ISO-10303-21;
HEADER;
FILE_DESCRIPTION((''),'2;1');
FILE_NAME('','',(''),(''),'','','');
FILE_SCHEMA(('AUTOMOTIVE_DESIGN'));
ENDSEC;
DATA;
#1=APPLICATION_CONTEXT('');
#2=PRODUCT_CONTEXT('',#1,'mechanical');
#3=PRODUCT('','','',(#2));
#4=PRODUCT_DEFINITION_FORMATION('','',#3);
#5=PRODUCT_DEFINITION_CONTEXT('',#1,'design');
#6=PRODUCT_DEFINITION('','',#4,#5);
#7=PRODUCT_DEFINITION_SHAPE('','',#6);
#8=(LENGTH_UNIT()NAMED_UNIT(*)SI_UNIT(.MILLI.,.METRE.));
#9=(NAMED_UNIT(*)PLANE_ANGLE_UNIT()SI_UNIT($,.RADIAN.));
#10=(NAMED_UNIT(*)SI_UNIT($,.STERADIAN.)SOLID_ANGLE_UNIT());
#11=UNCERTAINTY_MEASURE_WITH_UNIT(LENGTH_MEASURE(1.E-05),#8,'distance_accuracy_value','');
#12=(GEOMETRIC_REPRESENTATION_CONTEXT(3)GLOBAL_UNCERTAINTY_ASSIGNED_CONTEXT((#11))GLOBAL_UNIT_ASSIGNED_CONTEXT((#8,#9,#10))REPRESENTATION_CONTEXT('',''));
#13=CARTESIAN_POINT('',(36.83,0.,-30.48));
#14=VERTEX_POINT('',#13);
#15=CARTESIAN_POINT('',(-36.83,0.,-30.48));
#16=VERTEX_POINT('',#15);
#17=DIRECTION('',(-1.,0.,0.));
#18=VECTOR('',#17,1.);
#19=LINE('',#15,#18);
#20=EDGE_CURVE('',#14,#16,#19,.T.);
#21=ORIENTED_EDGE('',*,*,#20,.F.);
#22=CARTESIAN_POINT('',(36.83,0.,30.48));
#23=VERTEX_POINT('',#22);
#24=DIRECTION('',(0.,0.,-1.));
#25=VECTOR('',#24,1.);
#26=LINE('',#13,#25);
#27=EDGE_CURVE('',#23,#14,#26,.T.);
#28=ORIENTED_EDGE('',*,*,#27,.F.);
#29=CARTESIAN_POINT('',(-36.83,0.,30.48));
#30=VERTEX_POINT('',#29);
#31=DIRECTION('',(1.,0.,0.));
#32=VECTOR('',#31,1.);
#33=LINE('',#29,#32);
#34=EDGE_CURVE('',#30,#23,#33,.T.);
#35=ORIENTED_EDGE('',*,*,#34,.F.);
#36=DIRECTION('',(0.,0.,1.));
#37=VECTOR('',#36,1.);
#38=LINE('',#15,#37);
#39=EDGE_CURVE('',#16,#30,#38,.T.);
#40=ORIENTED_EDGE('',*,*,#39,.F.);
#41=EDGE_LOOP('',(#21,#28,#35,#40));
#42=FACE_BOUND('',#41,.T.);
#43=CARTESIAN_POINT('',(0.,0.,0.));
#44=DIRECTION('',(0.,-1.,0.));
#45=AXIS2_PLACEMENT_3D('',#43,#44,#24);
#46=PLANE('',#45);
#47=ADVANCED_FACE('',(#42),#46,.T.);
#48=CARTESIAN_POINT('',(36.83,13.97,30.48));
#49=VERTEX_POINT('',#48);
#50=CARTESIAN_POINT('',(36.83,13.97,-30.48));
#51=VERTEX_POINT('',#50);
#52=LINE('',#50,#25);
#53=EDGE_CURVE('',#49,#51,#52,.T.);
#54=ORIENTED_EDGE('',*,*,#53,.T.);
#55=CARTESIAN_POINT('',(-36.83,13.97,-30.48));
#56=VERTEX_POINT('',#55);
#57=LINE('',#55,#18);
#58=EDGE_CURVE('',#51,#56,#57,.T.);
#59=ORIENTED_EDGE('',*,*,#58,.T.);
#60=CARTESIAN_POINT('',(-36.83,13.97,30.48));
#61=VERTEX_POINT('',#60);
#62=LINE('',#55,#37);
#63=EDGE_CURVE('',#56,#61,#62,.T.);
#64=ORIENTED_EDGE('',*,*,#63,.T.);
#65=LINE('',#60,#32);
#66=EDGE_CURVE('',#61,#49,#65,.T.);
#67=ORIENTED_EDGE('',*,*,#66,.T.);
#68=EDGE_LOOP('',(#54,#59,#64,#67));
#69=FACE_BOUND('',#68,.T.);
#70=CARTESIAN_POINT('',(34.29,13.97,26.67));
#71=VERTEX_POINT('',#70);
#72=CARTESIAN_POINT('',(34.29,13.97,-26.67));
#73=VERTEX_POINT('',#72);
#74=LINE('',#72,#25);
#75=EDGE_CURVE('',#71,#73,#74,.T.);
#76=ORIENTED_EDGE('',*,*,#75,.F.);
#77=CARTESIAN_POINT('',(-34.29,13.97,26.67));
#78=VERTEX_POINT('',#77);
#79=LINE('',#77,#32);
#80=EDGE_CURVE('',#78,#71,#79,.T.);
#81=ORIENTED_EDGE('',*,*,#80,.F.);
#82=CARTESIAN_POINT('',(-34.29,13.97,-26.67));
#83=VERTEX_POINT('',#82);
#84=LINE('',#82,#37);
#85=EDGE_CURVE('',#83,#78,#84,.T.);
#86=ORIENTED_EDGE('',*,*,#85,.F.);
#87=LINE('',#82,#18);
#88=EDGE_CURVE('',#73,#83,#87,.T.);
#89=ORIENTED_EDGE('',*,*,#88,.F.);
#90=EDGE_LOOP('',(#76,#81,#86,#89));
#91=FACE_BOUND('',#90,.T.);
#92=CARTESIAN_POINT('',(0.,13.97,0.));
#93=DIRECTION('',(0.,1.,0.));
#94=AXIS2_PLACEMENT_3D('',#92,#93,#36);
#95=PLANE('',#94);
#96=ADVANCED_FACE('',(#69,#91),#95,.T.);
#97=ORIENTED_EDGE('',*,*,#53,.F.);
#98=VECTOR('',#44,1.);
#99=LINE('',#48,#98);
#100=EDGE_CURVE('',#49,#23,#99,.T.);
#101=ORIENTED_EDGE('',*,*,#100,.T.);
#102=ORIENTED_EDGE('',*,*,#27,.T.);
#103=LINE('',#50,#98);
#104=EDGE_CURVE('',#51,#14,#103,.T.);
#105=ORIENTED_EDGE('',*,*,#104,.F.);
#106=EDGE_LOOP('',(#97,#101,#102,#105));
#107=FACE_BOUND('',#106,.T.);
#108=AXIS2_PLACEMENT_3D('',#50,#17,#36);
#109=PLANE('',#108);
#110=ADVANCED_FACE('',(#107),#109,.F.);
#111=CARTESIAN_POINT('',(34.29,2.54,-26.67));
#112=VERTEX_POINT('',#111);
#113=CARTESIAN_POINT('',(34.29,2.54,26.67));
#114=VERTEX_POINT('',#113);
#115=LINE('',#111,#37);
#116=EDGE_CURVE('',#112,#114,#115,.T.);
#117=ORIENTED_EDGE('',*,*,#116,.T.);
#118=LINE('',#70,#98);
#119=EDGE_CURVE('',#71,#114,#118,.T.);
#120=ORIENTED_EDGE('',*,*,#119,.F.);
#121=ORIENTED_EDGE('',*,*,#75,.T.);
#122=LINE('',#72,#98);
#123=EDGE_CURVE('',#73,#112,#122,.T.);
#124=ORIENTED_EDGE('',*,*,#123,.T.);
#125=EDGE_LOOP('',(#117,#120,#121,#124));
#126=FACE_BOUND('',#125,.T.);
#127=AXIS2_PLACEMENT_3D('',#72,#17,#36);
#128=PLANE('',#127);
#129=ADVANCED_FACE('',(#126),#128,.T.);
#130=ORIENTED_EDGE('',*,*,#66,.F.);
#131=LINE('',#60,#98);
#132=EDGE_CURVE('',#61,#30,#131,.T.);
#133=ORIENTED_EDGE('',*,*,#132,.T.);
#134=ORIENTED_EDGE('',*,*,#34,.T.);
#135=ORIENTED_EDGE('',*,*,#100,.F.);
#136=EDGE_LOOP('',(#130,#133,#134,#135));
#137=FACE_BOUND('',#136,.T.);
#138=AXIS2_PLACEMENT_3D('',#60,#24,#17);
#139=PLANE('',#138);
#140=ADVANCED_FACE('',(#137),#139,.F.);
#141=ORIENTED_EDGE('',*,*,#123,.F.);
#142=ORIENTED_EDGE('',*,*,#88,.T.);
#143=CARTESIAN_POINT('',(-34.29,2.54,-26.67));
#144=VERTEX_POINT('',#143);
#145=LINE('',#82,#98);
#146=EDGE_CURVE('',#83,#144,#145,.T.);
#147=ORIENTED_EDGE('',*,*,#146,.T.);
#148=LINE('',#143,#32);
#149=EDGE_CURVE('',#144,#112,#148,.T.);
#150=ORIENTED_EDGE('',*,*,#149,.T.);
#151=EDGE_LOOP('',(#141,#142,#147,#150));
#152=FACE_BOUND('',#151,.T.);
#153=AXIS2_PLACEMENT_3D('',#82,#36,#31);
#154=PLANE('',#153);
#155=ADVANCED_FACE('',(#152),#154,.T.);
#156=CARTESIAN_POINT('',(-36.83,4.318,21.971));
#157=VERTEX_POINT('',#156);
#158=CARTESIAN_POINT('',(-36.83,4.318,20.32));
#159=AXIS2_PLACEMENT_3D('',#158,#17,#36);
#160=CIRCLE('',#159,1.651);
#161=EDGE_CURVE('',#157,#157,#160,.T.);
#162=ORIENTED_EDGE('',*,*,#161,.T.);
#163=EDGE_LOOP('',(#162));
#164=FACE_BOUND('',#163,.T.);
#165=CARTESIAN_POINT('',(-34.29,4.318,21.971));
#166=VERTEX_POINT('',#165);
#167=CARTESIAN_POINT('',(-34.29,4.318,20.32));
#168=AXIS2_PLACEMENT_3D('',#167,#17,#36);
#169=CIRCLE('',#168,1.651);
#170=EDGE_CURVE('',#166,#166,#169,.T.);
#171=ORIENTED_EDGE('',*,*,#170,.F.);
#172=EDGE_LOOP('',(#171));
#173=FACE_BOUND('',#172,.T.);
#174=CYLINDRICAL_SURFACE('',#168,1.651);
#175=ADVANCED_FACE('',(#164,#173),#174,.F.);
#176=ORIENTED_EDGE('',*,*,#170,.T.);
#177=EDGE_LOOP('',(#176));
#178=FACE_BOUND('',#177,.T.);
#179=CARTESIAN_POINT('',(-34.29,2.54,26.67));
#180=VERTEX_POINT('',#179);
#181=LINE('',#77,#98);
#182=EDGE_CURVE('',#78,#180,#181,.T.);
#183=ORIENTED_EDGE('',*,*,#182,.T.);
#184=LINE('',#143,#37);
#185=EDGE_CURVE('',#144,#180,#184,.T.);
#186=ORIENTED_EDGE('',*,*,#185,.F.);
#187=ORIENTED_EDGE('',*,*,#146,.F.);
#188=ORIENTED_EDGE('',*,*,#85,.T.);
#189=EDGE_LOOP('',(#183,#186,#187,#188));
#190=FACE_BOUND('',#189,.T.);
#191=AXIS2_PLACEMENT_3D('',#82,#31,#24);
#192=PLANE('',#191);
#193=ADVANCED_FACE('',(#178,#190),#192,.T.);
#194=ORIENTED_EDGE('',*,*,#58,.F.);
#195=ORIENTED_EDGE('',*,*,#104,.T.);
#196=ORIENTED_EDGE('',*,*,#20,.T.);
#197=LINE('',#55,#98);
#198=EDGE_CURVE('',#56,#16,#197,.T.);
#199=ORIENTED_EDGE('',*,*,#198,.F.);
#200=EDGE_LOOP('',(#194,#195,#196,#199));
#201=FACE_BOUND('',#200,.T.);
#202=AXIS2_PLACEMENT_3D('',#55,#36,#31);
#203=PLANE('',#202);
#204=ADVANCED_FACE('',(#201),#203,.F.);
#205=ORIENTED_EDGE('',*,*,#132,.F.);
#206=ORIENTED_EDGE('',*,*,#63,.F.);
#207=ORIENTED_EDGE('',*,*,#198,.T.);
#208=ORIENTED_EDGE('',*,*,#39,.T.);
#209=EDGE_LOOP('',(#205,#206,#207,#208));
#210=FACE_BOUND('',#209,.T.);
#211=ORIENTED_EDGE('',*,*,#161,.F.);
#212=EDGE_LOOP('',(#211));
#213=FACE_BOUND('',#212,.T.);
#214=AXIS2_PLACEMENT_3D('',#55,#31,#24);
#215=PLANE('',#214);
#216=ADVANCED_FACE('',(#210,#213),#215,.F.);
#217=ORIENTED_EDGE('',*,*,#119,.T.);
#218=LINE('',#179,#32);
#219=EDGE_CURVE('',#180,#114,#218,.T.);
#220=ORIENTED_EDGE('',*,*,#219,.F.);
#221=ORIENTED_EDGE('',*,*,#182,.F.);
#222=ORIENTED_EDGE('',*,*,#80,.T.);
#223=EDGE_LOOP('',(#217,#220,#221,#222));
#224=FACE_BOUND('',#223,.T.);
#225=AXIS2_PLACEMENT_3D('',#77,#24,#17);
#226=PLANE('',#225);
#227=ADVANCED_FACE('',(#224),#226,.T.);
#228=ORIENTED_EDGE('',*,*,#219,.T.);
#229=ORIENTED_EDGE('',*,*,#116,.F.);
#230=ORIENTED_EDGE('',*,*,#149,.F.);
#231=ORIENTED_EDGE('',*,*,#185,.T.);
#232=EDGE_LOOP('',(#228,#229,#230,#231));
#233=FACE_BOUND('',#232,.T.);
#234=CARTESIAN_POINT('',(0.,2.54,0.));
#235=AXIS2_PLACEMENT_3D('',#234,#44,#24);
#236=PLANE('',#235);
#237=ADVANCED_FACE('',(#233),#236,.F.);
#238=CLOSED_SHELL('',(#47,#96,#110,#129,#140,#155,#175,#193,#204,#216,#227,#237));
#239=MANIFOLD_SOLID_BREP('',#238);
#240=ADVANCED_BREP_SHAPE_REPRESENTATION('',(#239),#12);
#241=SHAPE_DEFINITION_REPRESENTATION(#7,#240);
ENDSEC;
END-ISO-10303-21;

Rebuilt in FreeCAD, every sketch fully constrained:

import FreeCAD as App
import Part
import Sketcher
from FreeCAD import Vector
Q = App.Units.Quantity


def add_polygon(sketch, points):
    """Adds a closed chain of lines whose ends are joined by coincident constraints."""
    first, n = sketch.GeometryCount, len(points)
    for a, b in zip(points, points[1:] + points[:1]):
        sketch.addGeometry(Part.LineSegment(App.Vector(*a, 0), App.Vector(*b, 0)), False)
    for i in range(n):
        sketch.addConstraint(Sketcher.Constraint("Coincident", first + i, 2, first + (i + 1) % n, 1))

doc = App.newDocument("Part")
body = doc.addObject("PartDesign::Body", "Body")

sketch1 = body.newObject("Sketcher::SketchObject", "Sketch")
sketch1.AttachmentSupport = (doc.getObject("XZ_Plane"), [""])
sketch1.MapMode = "FlatFace"
add_polygon(sketch1, [(-34, -27), (-34, 27), (34, 27), (34, -27)])
sketch1.addConstraint([
    Sketcher.Constraint("Vertical", 0),
    Sketcher.Constraint("Horizontal", 1),
    Sketcher.Constraint("Vertical", 2),
    Sketcher.Constraint("Horizontal", 3),
    Sketcher.Constraint("Symmetric", 0, 2, 2, 2, -1, 1),
    Sketcher.Constraint("DistanceX", 1, 1, 1, 2, Q("2.7 in")),
    Sketcher.Constraint("DistanceY", 0, 1, 0, 2, Q("2.1 in")),
])
pad1 = body.newObject("PartDesign::Pad", "Pad")
pad1.Profile = sketch1
pad1.Length = Q("0.1 in")
pad1.Reversed = True

sketch2 = body.newObject("Sketcher::SketchObject", "Sketch001")
sketch2.AttachmentSupport = (doc.getObject("XZ_Plane"), [""])
sketch2.MapMode = "FlatFace"
add_polygon(sketch2, [(-37, -30), (-37, 30), (37, 30), (37, -30)])
add_polygon(sketch2, [(34, 27), (-34, 27), (-34, -27), (34, -27)])
sketch2.addConstraint([
    Sketcher.Constraint("Vertical", 0),
    Sketcher.Constraint("Horizontal", 1),
    Sketcher.Constraint("Vertical", 2),
    Sketcher.Constraint("Horizontal", 3),
    Sketcher.Constraint("Horizontal", 4),
    Sketcher.Constraint("Vertical", 5),
    Sketcher.Constraint("Horizontal", 6),
    Sketcher.Constraint("Vertical", 7),
    Sketcher.Constraint("Symmetric", 0, 2, 2, 2, -1, 1),
    Sketcher.Constraint("Symmetric", 4, 2, 6, 2, -1, 1),
    Sketcher.Constraint("DistanceX", 1, 1, 1, 2, Q("2.9 in")),
    Sketcher.Constraint("DistanceX", 4, 2, 4, 1, Q("2.7 in")),
    Sketcher.Constraint("DistanceY", 0, 1, 0, 2, Q("2.4 in")),
    Sketcher.Constraint("DistanceY", 5, 2, 5, 1, Q("2.1 in")),
])
pad2 = body.newObject("PartDesign::Pad", "Pad001")
pad2.Profile = sketch2
pad2.Length = Q("0.55 in")
pad2.Reversed = True

sketch3 = body.newObject("Sketcher::SketchObject", "Sketch002")
sketch3.AttachmentSupport = (doc.getObject("YZ_Plane"), [""])
sketch3.MapMode = "FlatFace"
sketch3.AttachmentOffset = App.Placement(Vector(0, 0, -1.45 * 25.4), App.Rotation())
sketch3.addGeometry(Part.Circle(Vector(4.3, 20.3, 0), Vector(0, 0, 1), 1.7), False)
sketch3.addConstraint([
    Sketcher.Constraint("Diameter", 0, Q("0.13 in")),
    Sketcher.Constraint("DistanceY", -1, 1, 0, 3, Q("0.8 in")),
    Sketcher.Constraint("DistanceX", -1, 1, 0, 3, Q("0.17 in")),
])
pocket1 = body.newObject("PartDesign::Pocket", "Pocket")
pocket1.Profile = sketch3
pocket1.Length = Q("0.1 in")
pocket1.Reversed = True

doc.recompute()
